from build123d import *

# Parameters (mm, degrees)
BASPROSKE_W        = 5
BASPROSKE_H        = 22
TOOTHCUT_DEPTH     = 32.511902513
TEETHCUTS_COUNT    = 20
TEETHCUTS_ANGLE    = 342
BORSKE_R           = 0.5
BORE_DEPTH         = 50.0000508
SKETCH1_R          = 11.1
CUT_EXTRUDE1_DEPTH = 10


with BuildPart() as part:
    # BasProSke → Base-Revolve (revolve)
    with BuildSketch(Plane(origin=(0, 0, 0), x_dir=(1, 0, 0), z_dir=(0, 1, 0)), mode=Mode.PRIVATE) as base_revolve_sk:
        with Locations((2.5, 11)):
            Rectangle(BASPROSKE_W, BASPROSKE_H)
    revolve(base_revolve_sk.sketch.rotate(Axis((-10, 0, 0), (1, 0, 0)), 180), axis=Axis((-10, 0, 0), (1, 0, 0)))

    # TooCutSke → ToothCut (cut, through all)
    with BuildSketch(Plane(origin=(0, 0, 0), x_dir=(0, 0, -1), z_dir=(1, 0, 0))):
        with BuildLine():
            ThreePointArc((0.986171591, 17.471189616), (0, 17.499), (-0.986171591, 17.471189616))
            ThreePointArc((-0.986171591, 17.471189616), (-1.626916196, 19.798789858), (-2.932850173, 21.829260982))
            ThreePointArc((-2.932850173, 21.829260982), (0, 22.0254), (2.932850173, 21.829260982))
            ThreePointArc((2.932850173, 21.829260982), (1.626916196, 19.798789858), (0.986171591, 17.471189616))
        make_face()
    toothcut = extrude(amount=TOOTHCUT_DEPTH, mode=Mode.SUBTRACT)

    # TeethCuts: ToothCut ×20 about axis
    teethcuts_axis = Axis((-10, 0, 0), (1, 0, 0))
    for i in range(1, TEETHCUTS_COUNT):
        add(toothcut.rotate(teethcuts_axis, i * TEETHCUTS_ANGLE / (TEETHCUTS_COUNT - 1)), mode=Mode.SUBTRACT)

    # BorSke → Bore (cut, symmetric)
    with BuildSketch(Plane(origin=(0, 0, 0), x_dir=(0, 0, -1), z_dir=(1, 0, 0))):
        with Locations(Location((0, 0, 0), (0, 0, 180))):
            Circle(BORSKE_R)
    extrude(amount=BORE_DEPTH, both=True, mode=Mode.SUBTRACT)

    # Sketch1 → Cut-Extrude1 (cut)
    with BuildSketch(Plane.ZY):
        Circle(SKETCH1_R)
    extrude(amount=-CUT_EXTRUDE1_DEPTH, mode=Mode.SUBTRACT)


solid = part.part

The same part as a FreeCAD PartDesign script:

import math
import FreeCAD as App
import Part
import Sketcher


def add_polygon(sketch, points):
    """Adds a closed chain of lines whose ends are joined by coincident constraints."""
    first, n = sketch.GeometryCount, len(points)
    for a, b in zip(points, points[1:] + points[:1]):
        sketch.addGeometry(Part.LineSegment(App.Vector(*a, 0), App.Vector(*b, 0)), False)
    for i in range(n):
        sketch.addConstraint(Sketcher.Constraint("Coincident", first + i, 2, first + (i + 1) % n, 1))

doc = App.newDocument("Part")
body = doc.addObject("PartDesign::Body", "Body")

sketch1 = body.newObject("Sketcher::SketchObject", "Sketch")
sketch1.AttachmentSupport = (doc.getObject("XZ_Plane"), [""])
sketch1.MapMode = "FlatFace"
add_polygon(sketch1, [(0, -22), (0, 0), (5, 0), (5, -22)])
sketch1.addConstraint([
    Sketcher.Constraint("Vertical", 0),
    Sketcher.Constraint("Horizontal", 1),
    Sketcher.Constraint("Vertical", 2),
    Sketcher.Constraint("Horizontal", 3),
    Sketcher.Constraint("Coincident", 0, 2, -1, 1),
    Sketcher.Constraint("DistanceX", 1, 1, 1, 2, 5.0),
    Sketcher.Constraint("DistanceY", 0, 1, 0, 2, 22.0),
])
revolution = body.newObject("PartDesign::Revolution", "Revolution")
revolution.Profile = sketch1
revolution.ReferenceAxis = (sketch1, ["H_Axis"])
revolution.Angle = 360

sketch2 = body.newObject("Sketcher::SketchObject", "Sketch001")
sketch2.AttachmentSupport = (doc.getObject("YZ_Plane"), [""])
sketch2.MapMode = "FlatFace"
sketch2.addGeometry([
    Part.ArcOfCircle(Part.Circle(App.Vector(0, 0, 0), App.Vector(0, 0, 1), 17.5), math.radians(-3.23), math.radians(3.23)),
    Part.ArcOfCircle(Part.Circle(App.Vector(16.5, -8.9, 0), App.Vector(0, 0, 1), 8), math.radians(49), math.radians(83)),
    Part.ArcOfCircle(Part.Circle(App.Vector(0, 0, 0), App.Vector(0, 0, 1), 22), math.radians(-7.65), math.radians(7.65)),
    Part.ArcOfCircle(Part.Circle(App.Vector(16.5, 8.9, 0), App.Vector(0, 0, 1), 8), math.radians(-83), math.radians(-49)),
], False)
sketch2.addConstraint([
    Sketcher.Constraint("Coincident", 0, 1, 1, 2),
    Sketcher.Constraint("Coincident", 1, 1, 2, 1),
    Sketcher.Constraint("Coincident", 2, 2, 3, 2),
    Sketcher.Constraint("Coincident", 3, 1, 0, 2),
    Sketcher.Constraint("Coincident", 0, 3, -1, 1),
    Sketcher.Constraint("Coincident", 2, 3, -1, 1),
    Sketcher.Constraint("Equal", 1, 3),
    Sketcher.Constraint("Symmetric", 1, 3, 3, 3, -1),
    Sketcher.Constraint("Radius", 1, 8.0),
    Sketcher.Constraint("Radius", 0, 17.499),
    Sketcher.Constraint("Radius", 2, 22.0254),
    Sketcher.Constraint("DistanceY", 1, 1, 2, 2, 5.8657),
    Sketcher.Constraint("DistanceX", -1, 1, 1, 3, 16.536031),
])
pocket1 = body.newObject("PartDesign::Pocket", "Pocket")
pocket1.Profile = sketch2
pocket1.Type = "ThroughAll"
pocket1.Reversed = True
doc.recompute()

polarpattern = body.newObject("PartDesign::PolarPattern", "PolarPattern")
polarpattern.Originals = [pocket1]
polarpattern.Axis = (doc.getObject("X_Axis"), [""])
polarpattern.Angle = 360
polarpattern.Occurrences = 20
body.Tip = polarpattern

sketch3 = body.newObject("Sketcher::SketchObject", "Sketch002")
sketch3.AttachmentSupport = (doc.getObject("YZ_Plane"), [""])
sketch3.MapMode = "FlatFace"
sketch3.addGeometry(Part.Circle(App.Vector(0, 0, 0), App.Vector(0, 0, 1), 0.5), False)
sketch3.addConstraint([
    Sketcher.Constraint("Coincident", 0, 3, -1, 1),
    Sketcher.Constraint("Diameter", 0, 1.0),
])
pocket2 = body.newObject("PartDesign::Pocket", "Pocket001")
pocket2.Profile = sketch3
pocket2.Length = 100.000102
pocket2.Midplane = True

sketch4 = body.newObject("Sketcher::SketchObject", "Sketch003")
sketch4.AttachmentSupport = (doc.getObject("YZ_Plane"), [""])
sketch4.MapMode = "FlatFace"
sketch4.addGeometry(Part.Circle(App.Vector(0, 0, 0), App.Vector(0, 0, 1), 11), False)
sketch4.addConstraint([
    Sketcher.Constraint("Coincident", 0, 3, -1, 1),
    Sketcher.Constraint("Diameter", 0, 22.2),
])
pocket3 = body.newObject("PartDesign::Pocket", "Pocket002")
pocket3.Profile = sketch4
pocket3.Length = 10
pocket3.Reversed = True

doc.recompute()
